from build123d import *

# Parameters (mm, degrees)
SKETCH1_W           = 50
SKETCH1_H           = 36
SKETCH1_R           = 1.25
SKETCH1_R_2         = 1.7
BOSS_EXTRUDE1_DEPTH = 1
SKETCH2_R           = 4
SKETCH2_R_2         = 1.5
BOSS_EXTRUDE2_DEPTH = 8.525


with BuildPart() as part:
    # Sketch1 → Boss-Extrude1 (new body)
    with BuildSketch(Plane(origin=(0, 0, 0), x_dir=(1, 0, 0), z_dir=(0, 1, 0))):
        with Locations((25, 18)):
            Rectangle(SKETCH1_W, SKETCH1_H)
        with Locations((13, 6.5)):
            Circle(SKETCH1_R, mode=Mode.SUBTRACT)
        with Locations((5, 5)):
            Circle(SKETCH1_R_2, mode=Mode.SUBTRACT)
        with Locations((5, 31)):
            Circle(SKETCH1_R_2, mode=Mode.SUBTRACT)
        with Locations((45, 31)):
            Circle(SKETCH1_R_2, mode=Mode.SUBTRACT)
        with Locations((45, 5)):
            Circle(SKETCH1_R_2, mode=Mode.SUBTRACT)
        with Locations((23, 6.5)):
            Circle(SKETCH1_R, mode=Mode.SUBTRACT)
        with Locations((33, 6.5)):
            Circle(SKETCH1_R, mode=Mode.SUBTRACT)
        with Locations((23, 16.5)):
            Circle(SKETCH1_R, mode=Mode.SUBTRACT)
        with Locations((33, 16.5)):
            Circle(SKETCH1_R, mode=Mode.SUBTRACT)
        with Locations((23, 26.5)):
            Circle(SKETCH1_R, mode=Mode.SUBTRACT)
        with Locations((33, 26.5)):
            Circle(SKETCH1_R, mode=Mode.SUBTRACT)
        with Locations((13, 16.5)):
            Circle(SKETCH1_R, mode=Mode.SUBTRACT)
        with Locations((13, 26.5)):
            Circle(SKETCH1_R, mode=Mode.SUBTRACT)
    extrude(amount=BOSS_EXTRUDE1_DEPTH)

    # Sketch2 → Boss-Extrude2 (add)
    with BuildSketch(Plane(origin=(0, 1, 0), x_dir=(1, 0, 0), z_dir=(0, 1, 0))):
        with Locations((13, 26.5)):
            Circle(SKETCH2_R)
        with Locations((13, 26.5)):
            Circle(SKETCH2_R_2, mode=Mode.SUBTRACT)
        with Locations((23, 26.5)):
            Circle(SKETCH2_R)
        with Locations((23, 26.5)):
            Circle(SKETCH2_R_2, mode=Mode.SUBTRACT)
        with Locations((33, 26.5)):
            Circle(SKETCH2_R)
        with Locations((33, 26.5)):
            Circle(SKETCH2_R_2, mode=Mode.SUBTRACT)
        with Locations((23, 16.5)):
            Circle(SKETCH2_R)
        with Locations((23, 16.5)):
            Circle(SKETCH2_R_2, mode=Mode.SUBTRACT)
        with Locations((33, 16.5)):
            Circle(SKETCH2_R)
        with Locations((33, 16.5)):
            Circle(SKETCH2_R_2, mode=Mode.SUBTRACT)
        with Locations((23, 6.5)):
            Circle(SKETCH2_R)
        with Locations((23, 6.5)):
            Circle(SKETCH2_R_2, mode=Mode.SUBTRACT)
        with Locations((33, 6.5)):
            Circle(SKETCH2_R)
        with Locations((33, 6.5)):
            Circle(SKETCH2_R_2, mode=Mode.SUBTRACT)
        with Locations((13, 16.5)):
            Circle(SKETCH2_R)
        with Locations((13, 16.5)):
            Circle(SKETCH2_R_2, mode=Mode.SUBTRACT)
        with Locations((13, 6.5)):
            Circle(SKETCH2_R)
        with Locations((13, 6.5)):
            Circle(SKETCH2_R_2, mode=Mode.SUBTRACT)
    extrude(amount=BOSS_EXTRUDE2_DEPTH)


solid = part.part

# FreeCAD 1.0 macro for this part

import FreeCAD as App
import Part
import Sketcher
from FreeCAD import Vector
Q = App.Units.Quantity

doc = App.newDocument("Part")
body = doc.addObject("PartDesign::Body", "Body")

# Sketch on XZ plane
sketch1 = doc.addObject("Sketcher::SketchObject", "Sketch")
body.addObject(sketch1)
sketch1.AttachmentSupport = (doc.XZ_Plane, [""])
sketch1.MapMode = "FlatFace"
sketch1.addGeometry(Part.LineSegment(Vector(0, -36, 0), Vector(0, 0, 0)), False)
sketch1.addGeometry(Part.LineSegment(Vector(0, 0, 0), Vector(50, 0, 0)), False)
sketch1.addGeometry(Part.LineSegment(Vector(50, 0, 0), Vector(50, -36, 0)), False)
sketch1.addGeometry(Part.LineSegment(Vector(50, -36, 0), Vector(0, -36, 0)), False)
sketch1.addGeometry(Part.Circle(Vector(5, -5, 0), Vector(0, 0, 1), 1.7), False)
sketch1.addGeometry(Part.Circle(Vector(13, -6.5, 0), Vector(0, 0, 1), 1.2), False)
sketch1.addGeometry(Part.Circle(Vector(23, -6.5, 0), Vector(0, 0, 1), 1.2), False)
sketch1.addGeometry(Part.Circle(Vector(13, -16.5, 0), Vector(0, 0, 1), 1.2), False)
sketch1.addGeometry(Part.Circle(Vector(23, -16.5, 0), Vector(0, 0, 1), 1.2), False)
sketch1.addGeometry(Part.Circle(Vector(33, -6.5, 0), Vector(0, 0, 1), 1.2), False)
sketch1.addGeometry(Part.Circle(Vector(45, -5, 0), Vector(0, 0, 1), 1.7), False)
sketch1.addGeometry(Part.Circle(Vector(33, -16.5, 0), Vector(0, 0, 1), 1.2), False)
sketch1.addGeometry(Part.Circle(Vector(13, -26.5, 0), Vector(0, 0, 1), 1.2), False)
sketch1.addGeometry(Part.Circle(Vector(5, -31, 0), Vector(0, 0, 1), 1.7), False)
sketch1.addGeometry(Part.Circle(Vector(23, -26.5, 0), Vector(0, 0, 1), 1.2), False)
sketch1.addGeometry(Part.Circle(Vector(33, -26.5, 0), Vector(0, 0, 1), 1.2), False)
sketch1.addGeometry(Part.Circle(Vector(45, -31, 0), Vector(0, 0, 1), 1.7), False)
sketch1.addConstraint(Sketcher.Constraint("Coincident", 0, 2, 1, 1))
sketch1.addConstraint(Sketcher.Constraint("Coincident", 1, 2, 2, 1))
sketch1.addConstraint(Sketcher.Constraint("Coincident", 2, 2, 3, 1))
sketch1.addConstraint(Sketcher.Constraint("Coincident", 3, 2, 0, 1))
sketch1.addConstraint(Sketcher.Constraint("Vertical", 0))
sketch1.addConstraint(Sketcher.Constraint("Horizontal", 1))
sketch1.addConstraint(Sketcher.Constraint("Vertical", 2))
sketch1.addConstraint(Sketcher.Constraint("Horizontal", 3))
sketch1.addConstraint(Sketcher.Constraint("Coincident", 0, 2, -1, 1))
sketch1.addConstraint(Sketcher.Constraint("Equal", 5, 6))
sketch1.addConstraint(Sketcher.Constraint("Equal", 6, 7))
sketch1.addConstraint(Sketcher.Constraint("Equal", 7, 8))
sketch1.addConstraint(Sketcher.Constraint("Equal", 8, 9))
sketch1.addConstraint(Sketcher.Constraint("Equal", 4, 10))
sketch1.addConstraint(Sketcher.Constraint("Equal", 9, 11))
sketch1.addConstraint(Sketcher.Constraint("Equal", 11, 12))
sketch1.addConstraint(Sketcher.Constraint("Equal", 10, 13))
sketch1.addConstraint(Sketcher.Constraint("Equal", 12, 14))
sketch1.addConstraint(Sketcher.Constraint("Equal", 14, 15))
sketch1.addConstraint(Sketcher.Constraint("Equal", 13, 16))
sketch1.addConstraint(Sketcher.Constraint("Horizontal", 5, 3, 6, 3))
sketch1.addConstraint(Sketcher.Constraint("Horizontal", 7, 3, 8, 3))
sketch1.addConstraint(Sketcher.Constraint("Horizontal", 6, 3, 9, 3))
sketch1.addConstraint(Sketcher.Constraint("Horizontal", 4, 3, 10, 3))
sketch1.addConstraint(Sketcher.Constraint("Horizontal", 8, 3, 11, 3))
sketch1.addConstraint(Sketcher.Constraint("Horizontal", 12, 3, 14, 3))
sketch1.addConstraint(Sketcher.Constraint("Horizontal", 14, 3, 15, 3))
sketch1.addConstraint(Sketcher.Constraint("Horizontal", 13, 3, 16, 3))
sketch1.addConstraint(Sketcher.Constraint("Vertical", 5, 3, 7, 3))
sketch1.addConstraint(Sketcher.Constraint("Vertical", 6, 3, 8, 3))
sketch1.addConstraint(Sketcher.Constraint("Vertical", 9, 3, 11, 3))
sketch1.addConstraint(Sketcher.Constraint("Vertical", 7, 3, 12, 3))
sketch1.addConstraint(Sketcher.Constraint("Vertical", 4, 3, 13, 3))
sketch1.addConstraint(Sketcher.Constraint("Vertical", 8, 3, 14, 3))
sketch1.addConstraint(Sketcher.Constraint("Vertical", 11, 3, 15, 3))
sketch1.addConstraint(Sketcher.Constraint("Vertical", 10, 3, 16, 3))
sketch1.addConstraint(Sketcher.Constraint("Diameter", 4, Q("3.4 mm")))
sketch1.addConstraint(Sketcher.Constraint("Diameter", 5, Q("2.5 mm")))
sketch1.addConstraint(Sketcher.Constraint("DistanceX", 1, 1, 1, 2, Q("50 mm")))
sketch1.addConstraint(Sketcher.Constraint("DistanceY", 0, 1, 0, 2, Q("36 mm")))
sketch1.addConstraint(Sketcher.Constraint("DistanceX", -1, 1, 4, 3, Q("5 mm")))
sketch1.addConstraint(Sketcher.Constraint("DistanceY", 4, 3, -1, 1, Q("5 mm")))
sketch1.addConstraint(Sketcher.Constraint("DistanceX", -1, 1, 5, 3, Q("13 mm")))
sketch1.addConstraint(Sketcher.Constraint("DistanceX", -1, 1, 6, 3, Q("23 mm")))
sketch1.addConstraint(Sketcher.Constraint("DistanceX", -1, 1, 9, 3, Q("33 mm")))
sketch1.addConstraint(Sketcher.Constraint("DistanceX", -1, 1, 10, 3, Q("45 mm")))
sketch1.addConstraint(Sketcher.Constraint("DistanceY", 13, 3, -1, 1, Q("31 mm")))
sketch1.addConstraint(Sketcher.Constraint("DistanceY", 7, 3, 5, 3, Q("10 mm")))
sketch1.addConstraint(Sketcher.Constraint("DistanceY", 12, 3, 7, 3, Q("10 mm")))
sketch1.addConstraint(Sketcher.Constraint("DistanceY", 5, 3, -1, 1, Q("6.5 mm")))
pad1 = doc.addObject("PartDesign::Pad", "Pad")
body.addObject(pad1)
pad1.Profile = sketch1
pad1.Length = 1
pad1.Reversed = True

# Sketch on XZ plane
sketch2 = doc.addObject("Sketcher::SketchObject", "Sketch001")
body.addObject(sketch2)
sketch2.AttachmentSupport = (doc.XZ_Plane, [""])
sketch2.MapMode = "FlatFace"
sketch2.AttachmentOffset = App.Placement(Vector(0, 0, -1), App.Rotation())
sketch2.addGeometry(Part.Circle(Vector(13, -26.5, 0), Vector(0, 0, 1), 4), False)
sketch2.addGeometry(Part.Circle(Vector(13, -26.5, 0), Vector(0, 0, 1), 1.5), False)
sketch2.addGeometry(Part.Circle(Vector(23, -26.5, 0), Vector(0, 0, 1), 4), False)
sketch2.addGeometry(Part.Circle(Vector(23, -26.5, 0), Vector(0, 0, 1), 1.5), False)
sketch2.addGeometry(Part.Circle(Vector(33, -26.5, 0), Vector(0, 0, 1), 4), False)
sketch2.addGeometry(Part.Circle(Vector(33, -26.5, 0), Vector(0, 0, 1), 1.5), False)
sketch2.addGeometry(Part.Circle(Vector(23, -16.5, 0), Vector(0, 0, 1), 4), False)
sketch2.addGeometry(Part.Circle(Vector(23, -16.5, 0), Vector(0, 0, 1), 1.5), False)
sketch2.addGeometry(Part.Circle(Vector(33, -16.5, 0), Vector(0, 0, 1), 4), False)
sketch2.addGeometry(Part.Circle(Vector(33, -16.5, 0), Vector(0, 0, 1), 1.5), False)
sketch2.addGeometry(Part.Circle(Vector(23, -6.5, 0), Vector(0, 0, 1), 4), False)
sketch2.addGeometry(Part.Circle(Vector(23, -6.5, 0), Vector(0, 0, 1), 1.5), False)
sketch2.addGeometry(Part.Circle(Vector(33, -6.5, 0), Vector(0, 0, 1), 4), False)
sketch2.addGeometry(Part.Circle(Vector(33, -6.5, 0), Vector(0, 0, 1), 1.5), False)
sketch2.addGeometry(Part.Circle(Vector(13, -16.5, 0), Vector(0, 0, 1), 4), False)
sketch2.addGeometry(Part.Circle(Vector(13, -16.5, 0), Vector(0, 0, 1), 1.5), False)
sketch2.addGeometry(Part.Circle(Vector(13, -6.5, 0), Vector(0, 0, 1), 4), False)
sketch2.addGeometry(Part.Circle(Vector(13, -6.5, 0), Vector(0, 0, 1), 1.5), False)
sketch2.addConstraint(Sketcher.Constraint("Coincident", 1, 3, 0, 3))
sketch2.addConstraint(Sketcher.Constraint("Coincident", 3, 3, 2, 3))
sketch2.addConstraint(Sketcher.Constraint("Coincident", 5, 3, 4, 3))
sketch2.addConstraint(Sketcher.Constraint("Coincident", 7, 3, 6, 3))
sketch2.addConstraint(Sketcher.Constraint("Coincident", 9, 3, 8, 3))
sketch2.addConstraint(Sketcher.Constraint("Coincident", 11, 3, 10, 3))
sketch2.addConstraint(Sketcher.Constraint("Coincident", 13, 3, 12, 3))
sketch2.addConstraint(Sketcher.Constraint("Coincident", 15, 3, 14, 3))
sketch2.addConstraint(Sketcher.Constraint("Coincident", 17, 3, 16, 3))
sketch2.addConstraint(Sketcher.Constraint("Equal", 0, 2))
sketch2.addConstraint(Sketcher.Constraint("Equal", 1, 3))
sketch2.addConstraint(Sketcher.Constraint("Equal", 2, 4))
sketch2.addConstraint(Sketcher.Constraint("Equal", 3, 5))
sketch2.addConstraint(Sketcher.Constraint("Equal", 4, 6))
sketch2.addConstraint(Sketcher.Constraint("Equal", 5, 7))
sketch2.addConstraint(Sketcher.Constraint("Equal", 6, 8))
sketch2.addConstraint(Sketcher.Constraint("Equal", 7, 9))
sketch2.addConstraint(Sketcher.Constraint("Equal", 8, 10))
sketch2.addConstraint(Sketcher.Constraint("Equal", 9, 11))
sketch2.addConstraint(Sketcher.Constraint("Equal", 10, 12))
sketch2.addConstraint(Sketcher.Constraint("Equal", 11, 13))
sketch2.addConstraint(Sketcher.Constraint("Equal", 12, 14))
sketch2.addConstraint(Sketcher.Constraint("Equal", 13, 15))
sketch2.addConstraint(Sketcher.Constraint("Equal", 14, 16))
sketch2.addConstraint(Sketcher.Constraint("Equal", 15, 17))
sketch2.addConstraint(Sketcher.Constraint("Horizontal", 1, 3, 2, 3))
sketch2.addConstraint(Sketcher.Constraint("Horizontal", 3, 3, 4, 3))
sketch2.addConstraint(Sketcher.Constraint("Horizontal", 7, 3, 8, 3))
sketch2.addConstraint(Sketcher.Constraint("Horizontal", 11, 3, 12, 3))
sketch2.addConstraint(Sketcher.Constraint("Horizontal", 9, 3, 14, 3))
sketch2.addConstraint(Sketcher.Constraint("Horizontal", 13, 3, 16, 3))
sketch2.addConstraint(Sketcher.Constraint("Vertical", 3, 3, 6, 3))
sketch2.addConstraint(Sketcher.Constraint("Vertical", 5, 3, 8, 3))
sketch2.addConstraint(Sketcher.Constraint("Vertical", 7, 3, 10, 3))
sketch2.addConstraint(Sketcher.Constraint("Vertical", 9, 3, 12, 3))
sketch2.addConstraint(Sketcher.Constraint("Vertical", 1, 3, 14, 3))
sketch2.addConstraint(Sketcher.Constraint("Vertical", 15, 3, 16, 3))
sketch2.addConstraint(Sketcher.Constraint("Diameter", 0, Q("8 mm")))
sketch2.addConstraint(Sketcher.Constraint("Diameter", 1, Q("3 mm")))
sketch2.addConstraint(Sketcher.Constraint("DistanceX", -1, 1, 0, 3, Q("13 mm")))
sketch2.addConstraint(Sketcher.Constraint("DistanceX", -1, 1, 2, 3, Q("23 mm")))
sketch2.addConstraint(Sketcher.Constraint("DistanceX", -1, 1, 4, 3, Q("33 mm")))
sketch2.addConstraint(Sketcher.Constraint("DistanceY", 2, 3, 6, 3, Q("10 mm")))
sketch2.addConstraint(Sketcher.Constraint("DistanceY", 6, 3, 10, 3, Q("10 mm")))
sketch2.addConstraint(Sketcher.Constraint("DistanceY", 0, 3, -1, 1, Q("26.5 mm")))
pad2 = doc.addObject("PartDesign::Pad", "Pad001")
body.addObject(pad2)
pad2.Profile = sketch2
pad2.Length = 8.525
pad2.Reversed = True

doc.recompute()
